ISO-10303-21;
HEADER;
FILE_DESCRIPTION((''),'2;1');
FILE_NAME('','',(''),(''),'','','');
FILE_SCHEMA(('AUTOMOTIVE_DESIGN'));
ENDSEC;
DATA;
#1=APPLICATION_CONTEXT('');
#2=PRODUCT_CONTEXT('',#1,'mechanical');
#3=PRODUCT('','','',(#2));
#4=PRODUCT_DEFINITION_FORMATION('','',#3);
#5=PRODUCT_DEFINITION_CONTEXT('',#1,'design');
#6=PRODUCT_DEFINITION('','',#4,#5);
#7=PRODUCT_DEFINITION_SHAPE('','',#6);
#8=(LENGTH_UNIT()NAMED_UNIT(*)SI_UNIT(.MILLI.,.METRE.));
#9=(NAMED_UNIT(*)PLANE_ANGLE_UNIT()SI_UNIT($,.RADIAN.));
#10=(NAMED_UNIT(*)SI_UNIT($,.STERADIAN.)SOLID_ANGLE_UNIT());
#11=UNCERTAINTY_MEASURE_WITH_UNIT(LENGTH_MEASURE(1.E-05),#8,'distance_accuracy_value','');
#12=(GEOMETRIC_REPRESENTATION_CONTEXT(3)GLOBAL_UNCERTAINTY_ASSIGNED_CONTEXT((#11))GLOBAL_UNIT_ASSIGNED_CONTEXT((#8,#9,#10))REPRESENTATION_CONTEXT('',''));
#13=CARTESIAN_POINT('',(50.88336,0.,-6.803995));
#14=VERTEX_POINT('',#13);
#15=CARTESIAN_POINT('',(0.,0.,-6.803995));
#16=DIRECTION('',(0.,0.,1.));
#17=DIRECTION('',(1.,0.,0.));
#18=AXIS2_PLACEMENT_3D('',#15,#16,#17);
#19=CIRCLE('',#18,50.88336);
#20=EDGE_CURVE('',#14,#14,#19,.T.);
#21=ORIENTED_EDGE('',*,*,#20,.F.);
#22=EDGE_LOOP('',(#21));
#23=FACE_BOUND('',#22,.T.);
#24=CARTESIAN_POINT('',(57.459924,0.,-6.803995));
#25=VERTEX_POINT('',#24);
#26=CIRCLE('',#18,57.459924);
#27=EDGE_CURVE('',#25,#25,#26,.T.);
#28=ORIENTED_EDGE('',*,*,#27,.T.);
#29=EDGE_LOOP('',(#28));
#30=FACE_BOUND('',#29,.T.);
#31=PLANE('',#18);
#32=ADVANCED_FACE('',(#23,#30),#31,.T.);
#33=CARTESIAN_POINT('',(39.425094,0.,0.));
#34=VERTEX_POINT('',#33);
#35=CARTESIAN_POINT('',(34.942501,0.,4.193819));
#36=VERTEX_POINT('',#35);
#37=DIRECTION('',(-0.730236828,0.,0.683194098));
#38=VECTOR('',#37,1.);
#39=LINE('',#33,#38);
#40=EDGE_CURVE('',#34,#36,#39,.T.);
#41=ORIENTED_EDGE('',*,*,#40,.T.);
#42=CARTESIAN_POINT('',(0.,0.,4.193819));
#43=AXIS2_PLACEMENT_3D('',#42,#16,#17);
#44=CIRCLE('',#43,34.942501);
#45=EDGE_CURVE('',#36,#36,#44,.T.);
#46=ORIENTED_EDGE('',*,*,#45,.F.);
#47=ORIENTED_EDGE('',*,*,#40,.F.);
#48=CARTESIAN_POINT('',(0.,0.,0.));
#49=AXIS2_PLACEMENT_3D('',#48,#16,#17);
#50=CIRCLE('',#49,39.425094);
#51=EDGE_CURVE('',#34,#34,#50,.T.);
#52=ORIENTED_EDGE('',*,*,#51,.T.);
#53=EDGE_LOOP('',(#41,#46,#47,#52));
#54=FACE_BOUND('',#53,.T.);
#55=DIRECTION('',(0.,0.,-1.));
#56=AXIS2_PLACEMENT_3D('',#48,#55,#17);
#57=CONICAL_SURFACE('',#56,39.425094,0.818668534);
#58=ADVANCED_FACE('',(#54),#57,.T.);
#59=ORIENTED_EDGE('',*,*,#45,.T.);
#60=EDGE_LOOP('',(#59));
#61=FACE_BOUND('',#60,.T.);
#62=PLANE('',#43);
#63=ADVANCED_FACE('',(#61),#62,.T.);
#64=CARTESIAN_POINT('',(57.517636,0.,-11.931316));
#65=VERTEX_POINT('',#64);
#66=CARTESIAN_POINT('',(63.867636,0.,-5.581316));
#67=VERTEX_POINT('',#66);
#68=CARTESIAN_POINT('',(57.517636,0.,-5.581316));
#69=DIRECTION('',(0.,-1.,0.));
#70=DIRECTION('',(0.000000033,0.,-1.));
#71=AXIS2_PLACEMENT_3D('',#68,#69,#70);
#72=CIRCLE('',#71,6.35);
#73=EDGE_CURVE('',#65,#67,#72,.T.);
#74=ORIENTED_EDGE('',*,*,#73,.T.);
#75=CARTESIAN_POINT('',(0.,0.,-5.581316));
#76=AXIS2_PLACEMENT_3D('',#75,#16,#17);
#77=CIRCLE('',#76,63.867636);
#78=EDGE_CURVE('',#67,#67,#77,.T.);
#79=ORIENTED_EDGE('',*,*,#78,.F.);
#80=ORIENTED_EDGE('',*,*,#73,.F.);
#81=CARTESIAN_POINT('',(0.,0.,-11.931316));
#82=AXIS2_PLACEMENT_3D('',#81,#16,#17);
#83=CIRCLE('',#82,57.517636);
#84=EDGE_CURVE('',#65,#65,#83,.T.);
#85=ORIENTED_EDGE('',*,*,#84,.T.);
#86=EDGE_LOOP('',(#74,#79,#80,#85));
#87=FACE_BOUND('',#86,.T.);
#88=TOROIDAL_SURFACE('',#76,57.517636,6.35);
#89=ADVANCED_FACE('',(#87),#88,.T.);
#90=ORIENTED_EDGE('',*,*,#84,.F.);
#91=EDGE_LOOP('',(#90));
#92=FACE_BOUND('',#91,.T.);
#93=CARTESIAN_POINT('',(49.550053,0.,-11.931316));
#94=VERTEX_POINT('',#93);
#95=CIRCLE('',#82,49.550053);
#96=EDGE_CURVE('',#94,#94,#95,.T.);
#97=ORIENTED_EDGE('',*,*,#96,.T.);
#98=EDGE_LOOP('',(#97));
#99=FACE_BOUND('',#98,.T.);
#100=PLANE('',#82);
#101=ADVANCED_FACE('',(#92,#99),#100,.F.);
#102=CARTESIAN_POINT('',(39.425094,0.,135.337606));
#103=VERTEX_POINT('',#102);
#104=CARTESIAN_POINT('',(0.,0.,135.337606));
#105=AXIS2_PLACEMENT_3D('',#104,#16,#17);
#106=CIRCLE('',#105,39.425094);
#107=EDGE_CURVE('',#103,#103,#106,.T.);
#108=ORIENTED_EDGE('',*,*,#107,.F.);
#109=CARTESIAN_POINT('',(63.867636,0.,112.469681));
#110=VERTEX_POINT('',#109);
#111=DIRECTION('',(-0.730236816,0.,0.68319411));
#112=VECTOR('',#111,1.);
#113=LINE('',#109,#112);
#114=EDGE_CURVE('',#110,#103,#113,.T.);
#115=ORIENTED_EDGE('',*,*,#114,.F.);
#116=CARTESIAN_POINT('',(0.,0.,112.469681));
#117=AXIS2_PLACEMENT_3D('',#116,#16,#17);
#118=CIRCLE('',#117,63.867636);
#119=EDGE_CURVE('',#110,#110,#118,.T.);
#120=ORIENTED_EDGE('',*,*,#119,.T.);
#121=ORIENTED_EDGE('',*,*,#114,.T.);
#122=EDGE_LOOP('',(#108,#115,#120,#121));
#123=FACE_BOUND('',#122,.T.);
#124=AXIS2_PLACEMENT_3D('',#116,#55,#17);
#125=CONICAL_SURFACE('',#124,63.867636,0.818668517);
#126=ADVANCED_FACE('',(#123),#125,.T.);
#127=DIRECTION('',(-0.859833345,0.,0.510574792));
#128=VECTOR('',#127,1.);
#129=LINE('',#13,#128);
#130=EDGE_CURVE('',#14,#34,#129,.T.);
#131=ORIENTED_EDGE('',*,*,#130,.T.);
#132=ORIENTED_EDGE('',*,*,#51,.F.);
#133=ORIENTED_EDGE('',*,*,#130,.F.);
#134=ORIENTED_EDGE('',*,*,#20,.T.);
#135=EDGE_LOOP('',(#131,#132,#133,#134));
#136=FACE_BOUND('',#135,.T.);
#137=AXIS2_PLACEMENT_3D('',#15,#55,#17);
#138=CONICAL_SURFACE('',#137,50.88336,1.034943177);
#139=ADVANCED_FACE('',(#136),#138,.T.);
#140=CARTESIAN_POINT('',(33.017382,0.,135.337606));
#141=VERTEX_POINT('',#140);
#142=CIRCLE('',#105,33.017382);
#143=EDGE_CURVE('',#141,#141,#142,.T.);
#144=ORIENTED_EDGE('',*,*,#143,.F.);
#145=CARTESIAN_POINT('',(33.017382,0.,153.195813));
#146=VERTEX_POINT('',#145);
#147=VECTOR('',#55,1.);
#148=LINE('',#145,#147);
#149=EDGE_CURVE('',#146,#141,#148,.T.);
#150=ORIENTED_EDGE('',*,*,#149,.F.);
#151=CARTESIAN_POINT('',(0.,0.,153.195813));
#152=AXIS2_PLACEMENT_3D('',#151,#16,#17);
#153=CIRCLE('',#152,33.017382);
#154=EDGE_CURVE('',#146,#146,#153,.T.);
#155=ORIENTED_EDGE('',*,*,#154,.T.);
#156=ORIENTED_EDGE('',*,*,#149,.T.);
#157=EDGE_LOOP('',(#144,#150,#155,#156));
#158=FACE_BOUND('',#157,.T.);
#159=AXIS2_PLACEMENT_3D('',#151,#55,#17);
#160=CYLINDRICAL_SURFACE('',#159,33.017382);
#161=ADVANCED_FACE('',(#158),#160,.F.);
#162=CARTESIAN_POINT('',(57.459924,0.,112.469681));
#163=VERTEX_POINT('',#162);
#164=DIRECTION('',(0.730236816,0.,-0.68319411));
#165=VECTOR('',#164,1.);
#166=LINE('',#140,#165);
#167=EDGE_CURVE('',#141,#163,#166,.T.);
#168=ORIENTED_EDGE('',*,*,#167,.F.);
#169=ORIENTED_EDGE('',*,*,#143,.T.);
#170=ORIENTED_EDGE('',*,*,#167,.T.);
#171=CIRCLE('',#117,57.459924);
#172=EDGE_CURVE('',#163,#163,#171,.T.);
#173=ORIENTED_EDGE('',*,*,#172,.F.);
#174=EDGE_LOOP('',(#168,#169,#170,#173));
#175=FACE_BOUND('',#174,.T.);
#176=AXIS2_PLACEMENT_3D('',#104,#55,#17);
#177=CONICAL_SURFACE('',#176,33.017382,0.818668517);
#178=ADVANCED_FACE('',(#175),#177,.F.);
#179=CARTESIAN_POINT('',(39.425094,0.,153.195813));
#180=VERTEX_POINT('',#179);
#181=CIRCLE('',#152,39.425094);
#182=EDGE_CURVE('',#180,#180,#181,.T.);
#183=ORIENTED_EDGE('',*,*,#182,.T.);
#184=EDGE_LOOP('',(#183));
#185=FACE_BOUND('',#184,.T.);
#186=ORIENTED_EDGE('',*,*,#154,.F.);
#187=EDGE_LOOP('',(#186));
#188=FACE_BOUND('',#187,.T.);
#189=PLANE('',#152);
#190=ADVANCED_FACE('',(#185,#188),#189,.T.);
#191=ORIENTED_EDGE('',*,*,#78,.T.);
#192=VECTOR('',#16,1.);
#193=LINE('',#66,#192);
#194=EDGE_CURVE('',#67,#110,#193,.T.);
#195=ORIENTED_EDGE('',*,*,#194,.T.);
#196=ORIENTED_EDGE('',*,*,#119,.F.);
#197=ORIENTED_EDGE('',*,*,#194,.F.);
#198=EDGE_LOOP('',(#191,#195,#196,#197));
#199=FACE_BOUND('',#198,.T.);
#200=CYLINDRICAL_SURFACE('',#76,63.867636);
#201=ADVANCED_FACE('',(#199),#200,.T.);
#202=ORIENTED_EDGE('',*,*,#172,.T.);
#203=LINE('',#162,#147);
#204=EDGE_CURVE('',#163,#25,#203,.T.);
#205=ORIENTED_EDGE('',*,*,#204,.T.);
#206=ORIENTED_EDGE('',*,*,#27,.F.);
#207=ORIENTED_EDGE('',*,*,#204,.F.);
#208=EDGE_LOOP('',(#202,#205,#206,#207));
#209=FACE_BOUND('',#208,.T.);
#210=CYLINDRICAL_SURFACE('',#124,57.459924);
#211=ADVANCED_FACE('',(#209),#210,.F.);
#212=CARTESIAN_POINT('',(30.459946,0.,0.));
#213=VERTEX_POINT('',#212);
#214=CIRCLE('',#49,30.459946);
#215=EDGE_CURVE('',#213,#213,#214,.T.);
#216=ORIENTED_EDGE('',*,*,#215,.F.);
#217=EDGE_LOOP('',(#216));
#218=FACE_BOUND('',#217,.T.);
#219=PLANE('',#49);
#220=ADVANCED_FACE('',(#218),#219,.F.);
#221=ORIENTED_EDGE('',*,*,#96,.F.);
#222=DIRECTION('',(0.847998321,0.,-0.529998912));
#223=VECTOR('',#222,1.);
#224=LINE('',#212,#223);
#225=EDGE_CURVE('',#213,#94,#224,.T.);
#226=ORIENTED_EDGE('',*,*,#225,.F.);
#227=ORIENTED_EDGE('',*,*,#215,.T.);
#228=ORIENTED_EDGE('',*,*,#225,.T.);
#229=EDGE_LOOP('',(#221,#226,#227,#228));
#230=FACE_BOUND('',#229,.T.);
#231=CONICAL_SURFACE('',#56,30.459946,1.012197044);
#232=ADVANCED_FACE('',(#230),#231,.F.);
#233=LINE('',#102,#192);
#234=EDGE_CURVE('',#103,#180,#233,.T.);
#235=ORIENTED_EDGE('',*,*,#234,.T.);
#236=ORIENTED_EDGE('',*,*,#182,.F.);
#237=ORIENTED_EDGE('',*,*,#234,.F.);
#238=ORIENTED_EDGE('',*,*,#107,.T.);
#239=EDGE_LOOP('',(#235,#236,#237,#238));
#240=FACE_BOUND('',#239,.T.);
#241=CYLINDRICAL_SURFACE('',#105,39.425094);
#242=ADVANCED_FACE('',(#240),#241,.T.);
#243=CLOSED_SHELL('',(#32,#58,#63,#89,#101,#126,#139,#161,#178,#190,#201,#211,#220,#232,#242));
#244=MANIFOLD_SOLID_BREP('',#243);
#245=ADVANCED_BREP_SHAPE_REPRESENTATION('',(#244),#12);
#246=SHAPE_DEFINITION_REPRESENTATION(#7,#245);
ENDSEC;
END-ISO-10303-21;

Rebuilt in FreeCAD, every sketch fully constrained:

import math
import FreeCAD as App
import Part
import Sketcher
Q = App.Units.Quantity

doc = App.newDocument("Part")
body = doc.addObject("PartDesign::Body", "Body")

sketch1 = body.newObject("Sketcher::SketchObject", "Sketch")
sketch1.AttachmentSupport = (doc.getObject("XZ_Plane"), [""])
sketch1.MapMode = "FlatFace"
sketch1.addGeometry(Part.LineSegment(App.Vector(0, 4.193819, 0), App.Vector(0, 0, 0)), False)
sketch1.addGeometry(Part.LineSegment(App.Vector(0, 0, 0), App.Vector(30.459946, 0, 0)), False)
sketch1.addGeometry(Part.LineSegment(App.Vector(30.459946, 0, 0), App.Vector(49.550053, -11.931316, 0)), False)
sketch1.addGeometry(Part.LineSegment(App.Vector(49.550053, -11.931316, 0), App.Vector(57.517636, -11.931316, 0)), False)
sketch1.addGeometry(Part.ArcOfCircle(Part.Circle(App.Vector(57.517636, -5.581316, 0), App.Vector(0, 0, 1), 6.35), math.radians(-89.999998), math.radians(-0.000002)), False)
sketch1.addGeometry(Part.LineSegment(App.Vector(63.867636, -5.581316, 0), App.Vector(63.867636, 112.469681, 0)), False)
sketch1.addGeometry(Part.LineSegment(App.Vector(63.867636, 112.469681, 0), App.Vector(39.425094, 135.337606, 0)), False)
sketch1.addGeometry(Part.LineSegment(App.Vector(39.425094, 135.337606, 0), App.Vector(39.425094, 153.195813, 0)), False)
sketch1.addGeometry(Part.LineSegment(App.Vector(39.425094, 153.195813, 0), App.Vector(33.017382, 153.195813, 0)), False)
sketch1.addGeometry(Part.LineSegment(App.Vector(33.017382, 153.195813, 0), App.Vector(33.017382, 135.337606, 0)), False)
sketch1.addGeometry(Part.LineSegment(App.Vector(33.017382, 135.337606, 0), App.Vector(57.459924, 112.469681, 0)), False)
sketch1.addGeometry(Part.LineSegment(App.Vector(57.459924, 112.469681, 0), App.Vector(57.459924, -6.803995, 0)), False)
sketch1.addGeometry(Part.LineSegment(App.Vector(57.459924, -6.803995, 0), App.Vector(50.88336, -6.803995, 0)), False)
sketch1.addGeometry(Part.LineSegment(App.Vector(50.88336, -6.803995, 0), App.Vector(39.425094, 0, 0)), False)
sketch1.addGeometry(Part.LineSegment(App.Vector(39.425094, 0, 0), App.Vector(34.942501, 4.193819, 0)), False)
sketch1.addGeometry(Part.LineSegment(App.Vector(34.942501, 4.193819, 0), App.Vector(0, 4.193819, 0)), False)
sketch1.addConstraint(Sketcher.Constraint("Coincident", 0, 2, 1, 1))
sketch1.addConstraint(Sketcher.Constraint("Coincident", 1, 2, 2, 1))
sketch1.addConstraint(Sketcher.Constraint("Coincident", 2, 2, 3, 1))
sketch1.addConstraint(Sketcher.Constraint("Tangent", 3, 2, 4, 1))
sketch1.addConstraint(Sketcher.Constraint("Tangent", 4, 2, 5, 1))
sketch1.addConstraint(Sketcher.Constraint("Coincident", 5, 2, 6, 1))
sketch1.addConstraint(Sketcher.Constraint("Coincident", 6, 2, 7, 1))
sketch1.addConstraint(Sketcher.Constraint("Coincident", 7, 2, 8, 1))
sketch1.addConstraint(Sketcher.Constraint("Coincident", 8, 2, 9, 1))
sketch1.addConstraint(Sketcher.Constraint("Coincident", 9, 2, 10, 1))
sketch1.addConstraint(Sketcher.Constraint("Coincident", 10, 2, 11, 1))
sketch1.addConstraint(Sketcher.Constraint("Coincident", 11, 2, 12, 1))
sketch1.addConstraint(Sketcher.Constraint("Coincident", 12, 2, 13, 1))
sketch1.addConstraint(Sketcher.Constraint("Coincident", 13, 2, 14, 1))
sketch1.addConstraint(Sketcher.Constraint("Coincident", 14, 2, 15, 1))
sketch1.addConstraint(Sketcher.Constraint("Coincident", 15, 2, 0, 1))
sketch1.addConstraint(Sketcher.Constraint("Vertical", 0))
sketch1.addConstraint(Sketcher.Constraint("Horizontal", 1))
sketch1.addConstraint(Sketcher.Constraint("Horizontal", 3))
sketch1.addConstraint(Sketcher.Constraint("Vertical", 5))
sketch1.addConstraint(Sketcher.Constraint("Vertical", 7))
sketch1.addConstraint(Sketcher.Constraint("Horizontal", 8))
sketch1.addConstraint(Sketcher.Constraint("Vertical", 9))
sketch1.addConstraint(Sketcher.Constraint("Vertical", 11))
sketch1.addConstraint(Sketcher.Constraint("Horizontal", 12))
sketch1.addConstraint(Sketcher.Constraint("Horizontal", 15))
sketch1.addConstraint(Sketcher.Constraint("Coincident", 0, 2, -1, 1))
sketch1.addConstraint(Sketcher.Constraint("PointOnObject", 13, 2, -1))
sketch1.addConstraint(Sketcher.Constraint("Parallel", 6, 10))
sketch1.addConstraint(Sketcher.Constraint("Parallel", 10, 14))
sketch1.addConstraint(Sketcher.Constraint("Horizontal", 6, 2, 9, 2))
sketch1.addConstraint(Sketcher.Constraint("Horizontal", 5, 2, 10, 2))
sketch1.addConstraint(Sketcher.Constraint("Vertical", 7, 2, 13, 2))
sketch1.addConstraint(Sketcher.Constraint("Radius", 4, Q("0.25 in")))
sketch1.addConstraint(Sketcher.Constraint("DistanceX", 15, 2, 15, 1, 34.942501))
sketch1.addConstraint(Sketcher.Constraint("DistanceY", 0, 2, 0, 1, 4.193819))
sketch1.addConstraint(Sketcher.Constraint("DistanceX", 1, 1, 1, 2, 30.459946))
sketch1.addConstraint(Sketcher.Constraint("DistanceX", 3, 1, 3, 2, 7.967583))
sketch1.addConstraint(Sketcher.Constraint("DistanceX", 8, 2, 8, 1, 6.407712))
sketch1.addConstraint(Sketcher.Constraint("DistanceX", 12, 2, 12, 1, 6.576564))
sketch1.addConstraint(Sketcher.Constraint("DistanceY", 5, 1, 5, 2, 118.050997))
sketch1.addConstraint(Sketcher.Constraint("DistanceY", 7, 1, 7, 2, 17.858207))
sketch1.addConstraint(Sketcher.Constraint("DistanceY", 11, 2, 11, 1, 119.273676))
sketch1.addConstraint(Sketcher.Constraint("DistanceY", -1, 1, 5, 2, 112.469681))
sketch1.addConstraint(Sketcher.Constraint("DistanceX", -1, 1, 8, 2, 33.017382))
sketch1.addConstraint(Sketcher.Constraint("DistanceX", -1, 1, 12, 2, 50.88336))
revolution = body.newObject("PartDesign::Revolution", "Revolution")
revolution.Profile = sketch1
revolution.ReferenceAxis = (sketch1, ["V_Axis"])
revolution.Angle = 360

doc.recompute()
